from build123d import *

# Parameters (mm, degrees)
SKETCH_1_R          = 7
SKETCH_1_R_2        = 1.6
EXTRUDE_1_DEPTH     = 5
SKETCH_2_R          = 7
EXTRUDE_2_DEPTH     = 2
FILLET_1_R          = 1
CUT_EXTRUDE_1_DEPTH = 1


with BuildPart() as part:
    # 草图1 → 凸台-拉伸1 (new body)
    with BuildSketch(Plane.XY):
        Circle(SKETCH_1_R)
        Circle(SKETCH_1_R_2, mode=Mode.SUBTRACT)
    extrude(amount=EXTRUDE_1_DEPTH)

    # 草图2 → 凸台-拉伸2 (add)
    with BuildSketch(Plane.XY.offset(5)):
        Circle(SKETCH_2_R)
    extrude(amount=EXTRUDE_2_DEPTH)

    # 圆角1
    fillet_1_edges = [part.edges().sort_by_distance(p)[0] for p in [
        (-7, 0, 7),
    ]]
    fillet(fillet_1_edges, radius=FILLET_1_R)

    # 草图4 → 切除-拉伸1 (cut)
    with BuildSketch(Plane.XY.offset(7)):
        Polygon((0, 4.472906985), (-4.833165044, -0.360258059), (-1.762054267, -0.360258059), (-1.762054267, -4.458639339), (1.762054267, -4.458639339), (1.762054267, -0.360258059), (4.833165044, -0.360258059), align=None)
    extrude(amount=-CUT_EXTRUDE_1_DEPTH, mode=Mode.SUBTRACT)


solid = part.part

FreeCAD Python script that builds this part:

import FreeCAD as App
import Part
import Sketcher


def edges_at(feature, points):
    """Names of the edges that pass closest to the given points."""
    edges = feature.Shape.Edges
    near = lambda p: min(range(len(edges)), key=lambda i: edges[i].distToShape(Part.Vertex(*p))[0])
    return sorted({f"Edge{near(p) + 1}" for p in points})

doc = App.newDocument("Part")
body = doc.addObject("PartDesign::Body", "Body")

# Sketch on XY plane
sketch1 = body.newObject("Sketcher::SketchObject", "Sketch")
sketch1.AttachmentSupport = (doc.getObject("XY_Plane"), [""])
sketch1.MapMode = "FlatFace"
sketch1.addGeometry(Part.Circle(App.Vector(0, 0, 0), App.Vector(0, 0, 1), 7), False)
sketch1.addGeometry(Part.Circle(App.Vector(0, 0, 0), App.Vector(0, 0, 1), 1.6), False)
sketch1.addConstraint(Sketcher.Constraint("Coincident", 0, 3, -1, 1))
sketch1.addConstraint(Sketcher.Constraint("Coincident", 1, 3, -1, 1))
sketch1.addConstraint(Sketcher.Constraint("Diameter", 0, 14.0))
sketch1.addConstraint(Sketcher.Constraint("Diameter", 1, 3.2))
pad1 = body.newObject("PartDesign::Pad", "Pad")
pad1.Profile = sketch1
pad1.Length = 5

# Sketch on XY plane
sketch2 = body.newObject("Sketcher::SketchObject", "Sketch001")
sketch2.AttachmentSupport = (doc.getObject("XY_Plane"), [""])
sketch2.MapMode = "FlatFace"
sketch2.AttachmentOffset = App.Placement(App.Vector(0, 0, 5), App.Rotation())
sketch2.addGeometry(Part.Circle(App.Vector(0, 0, 0), App.Vector(0, 0, 1), 7), False)
sketch2.addConstraint(Sketcher.Constraint("Coincident", 0, 3, -1, 1))
sketch2.addConstraint(Sketcher.Constraint("Diameter", 0, 14.0))
pad2 = body.newObject("PartDesign::Pad", "Pad001")
pad2.Profile = sketch2
pad2.Length = 2
doc.recompute()

fillet = body.newObject("PartDesign::Fillet", "Fillet")
fillet.Base = (pad2, edges_at(pad2, [(-7, 0, 7)]))
fillet.Radius = 1

# Sketch on XY plane
sketch3 = body.newObject("Sketcher::SketchObject", "Sketch002")
sketch3.AttachmentSupport = (doc.getObject("XY_Plane"), [""])
sketch3.MapMode = "FlatFace"
sketch3.AttachmentOffset = App.Placement(App.Vector(0, 0, 7), App.Rotation())
sketch3.addGeometry(Part.LineSegment(App.Vector(0, 4.472907, 0), App.Vector(-4.833165, -0.360258, 0)), False)
sketch3.addGeometry(Part.LineSegment(App.Vector(-4.833165, -0.360258, 0), App.Vector(-1.762054, -0.360258, 0)), False)
sketch3.addGeometry(Part.LineSegment(App.Vector(-1.762054, -0.360258, 0), App.Vector(-1.762054, -4.458639, 0)), False)
sketch3.addGeometry(Part.LineSegment(App.Vector(-1.762054, -4.458639, 0), App.Vector(1.762054, -4.458639, 0)), False)
sketch3.addGeometry(Part.LineSegment(App.Vector(1.762054, -4.458639, 0), App.Vector(1.762054, -0.360258, 0)), False)
sketch3.addGeometry(Part.LineSegment(App.Vector(1.762054, -0.360258, 0), App.Vector(4.833165, -0.360258, 0)), False)
sketch3.addGeometry(Part.LineSegment(App.Vector(4.833165, -0.360258, 0), App.Vector(0, 4.472907, 0)), False)
sketch3.addConstraint(Sketcher.Constraint("Coincident", 0, 2, 1, 1))
sketch3.addConstraint(Sketcher.Constraint("Coincident", 1, 2, 2, 1))
sketch3.addConstraint(Sketcher.Constraint("Coincident", 2, 2, 3, 1))
sketch3.addConstraint(Sketcher.Constraint("Coincident", 3, 2, 4, 1))
sketch3.addConstraint(Sketcher.Constraint("Coincident", 4, 2, 5, 1))
sketch3.addConstraint(Sketcher.Constraint("Coincident", 5, 2, 6, 1))
sketch3.addConstraint(Sketcher.Constraint("Coincident", 6, 2, 0, 1))
sketch3.addConstraint(Sketcher.Constraint("Horizontal", 1))
sketch3.addConstraint(Sketcher.Constraint("Vertical", 2))
sketch3.addConstraint(Sketcher.Constraint("Horizontal", 3))
sketch3.addConstraint(Sketcher.Constraint("Vertical", 4))
sketch3.addConstraint(Sketcher.Constraint("Horizontal", 5))
sketch3.addConstraint(Sketcher.Constraint("Symmetric", 1, 2, 4, 2, -2))
sketch3.addConstraint(Sketcher.Constraint("PointOnObject", 6, 2, -2))
sketch3.addConstraint(Sketcher.Constraint("Perpendicular", 0, 6))
sketch3.addConstraint(Sketcher.Constraint("Equal", 1, 5))
sketch3.addConstraint(Sketcher.Constraint("DistanceX", 1, 1, 1, 2, 3.071111))
sketch3.addConstraint(Sketcher.Constraint("DistanceX", 3, 1, 3, 2, 3.524109))
sketch3.addConstraint(Sketcher.Constraint("DistanceY", 2, 2, 2, 1, 4.098381))
sketch3.addConstraint(Sketcher.Constraint("DistanceY", 0, 2, -1, 1, 0.360258))
pocket1 = body.newObject("PartDesign::Pocket", "Pocket")
pocket1.Profile = sketch3
pocket1.Length = 1

doc.recompute()
